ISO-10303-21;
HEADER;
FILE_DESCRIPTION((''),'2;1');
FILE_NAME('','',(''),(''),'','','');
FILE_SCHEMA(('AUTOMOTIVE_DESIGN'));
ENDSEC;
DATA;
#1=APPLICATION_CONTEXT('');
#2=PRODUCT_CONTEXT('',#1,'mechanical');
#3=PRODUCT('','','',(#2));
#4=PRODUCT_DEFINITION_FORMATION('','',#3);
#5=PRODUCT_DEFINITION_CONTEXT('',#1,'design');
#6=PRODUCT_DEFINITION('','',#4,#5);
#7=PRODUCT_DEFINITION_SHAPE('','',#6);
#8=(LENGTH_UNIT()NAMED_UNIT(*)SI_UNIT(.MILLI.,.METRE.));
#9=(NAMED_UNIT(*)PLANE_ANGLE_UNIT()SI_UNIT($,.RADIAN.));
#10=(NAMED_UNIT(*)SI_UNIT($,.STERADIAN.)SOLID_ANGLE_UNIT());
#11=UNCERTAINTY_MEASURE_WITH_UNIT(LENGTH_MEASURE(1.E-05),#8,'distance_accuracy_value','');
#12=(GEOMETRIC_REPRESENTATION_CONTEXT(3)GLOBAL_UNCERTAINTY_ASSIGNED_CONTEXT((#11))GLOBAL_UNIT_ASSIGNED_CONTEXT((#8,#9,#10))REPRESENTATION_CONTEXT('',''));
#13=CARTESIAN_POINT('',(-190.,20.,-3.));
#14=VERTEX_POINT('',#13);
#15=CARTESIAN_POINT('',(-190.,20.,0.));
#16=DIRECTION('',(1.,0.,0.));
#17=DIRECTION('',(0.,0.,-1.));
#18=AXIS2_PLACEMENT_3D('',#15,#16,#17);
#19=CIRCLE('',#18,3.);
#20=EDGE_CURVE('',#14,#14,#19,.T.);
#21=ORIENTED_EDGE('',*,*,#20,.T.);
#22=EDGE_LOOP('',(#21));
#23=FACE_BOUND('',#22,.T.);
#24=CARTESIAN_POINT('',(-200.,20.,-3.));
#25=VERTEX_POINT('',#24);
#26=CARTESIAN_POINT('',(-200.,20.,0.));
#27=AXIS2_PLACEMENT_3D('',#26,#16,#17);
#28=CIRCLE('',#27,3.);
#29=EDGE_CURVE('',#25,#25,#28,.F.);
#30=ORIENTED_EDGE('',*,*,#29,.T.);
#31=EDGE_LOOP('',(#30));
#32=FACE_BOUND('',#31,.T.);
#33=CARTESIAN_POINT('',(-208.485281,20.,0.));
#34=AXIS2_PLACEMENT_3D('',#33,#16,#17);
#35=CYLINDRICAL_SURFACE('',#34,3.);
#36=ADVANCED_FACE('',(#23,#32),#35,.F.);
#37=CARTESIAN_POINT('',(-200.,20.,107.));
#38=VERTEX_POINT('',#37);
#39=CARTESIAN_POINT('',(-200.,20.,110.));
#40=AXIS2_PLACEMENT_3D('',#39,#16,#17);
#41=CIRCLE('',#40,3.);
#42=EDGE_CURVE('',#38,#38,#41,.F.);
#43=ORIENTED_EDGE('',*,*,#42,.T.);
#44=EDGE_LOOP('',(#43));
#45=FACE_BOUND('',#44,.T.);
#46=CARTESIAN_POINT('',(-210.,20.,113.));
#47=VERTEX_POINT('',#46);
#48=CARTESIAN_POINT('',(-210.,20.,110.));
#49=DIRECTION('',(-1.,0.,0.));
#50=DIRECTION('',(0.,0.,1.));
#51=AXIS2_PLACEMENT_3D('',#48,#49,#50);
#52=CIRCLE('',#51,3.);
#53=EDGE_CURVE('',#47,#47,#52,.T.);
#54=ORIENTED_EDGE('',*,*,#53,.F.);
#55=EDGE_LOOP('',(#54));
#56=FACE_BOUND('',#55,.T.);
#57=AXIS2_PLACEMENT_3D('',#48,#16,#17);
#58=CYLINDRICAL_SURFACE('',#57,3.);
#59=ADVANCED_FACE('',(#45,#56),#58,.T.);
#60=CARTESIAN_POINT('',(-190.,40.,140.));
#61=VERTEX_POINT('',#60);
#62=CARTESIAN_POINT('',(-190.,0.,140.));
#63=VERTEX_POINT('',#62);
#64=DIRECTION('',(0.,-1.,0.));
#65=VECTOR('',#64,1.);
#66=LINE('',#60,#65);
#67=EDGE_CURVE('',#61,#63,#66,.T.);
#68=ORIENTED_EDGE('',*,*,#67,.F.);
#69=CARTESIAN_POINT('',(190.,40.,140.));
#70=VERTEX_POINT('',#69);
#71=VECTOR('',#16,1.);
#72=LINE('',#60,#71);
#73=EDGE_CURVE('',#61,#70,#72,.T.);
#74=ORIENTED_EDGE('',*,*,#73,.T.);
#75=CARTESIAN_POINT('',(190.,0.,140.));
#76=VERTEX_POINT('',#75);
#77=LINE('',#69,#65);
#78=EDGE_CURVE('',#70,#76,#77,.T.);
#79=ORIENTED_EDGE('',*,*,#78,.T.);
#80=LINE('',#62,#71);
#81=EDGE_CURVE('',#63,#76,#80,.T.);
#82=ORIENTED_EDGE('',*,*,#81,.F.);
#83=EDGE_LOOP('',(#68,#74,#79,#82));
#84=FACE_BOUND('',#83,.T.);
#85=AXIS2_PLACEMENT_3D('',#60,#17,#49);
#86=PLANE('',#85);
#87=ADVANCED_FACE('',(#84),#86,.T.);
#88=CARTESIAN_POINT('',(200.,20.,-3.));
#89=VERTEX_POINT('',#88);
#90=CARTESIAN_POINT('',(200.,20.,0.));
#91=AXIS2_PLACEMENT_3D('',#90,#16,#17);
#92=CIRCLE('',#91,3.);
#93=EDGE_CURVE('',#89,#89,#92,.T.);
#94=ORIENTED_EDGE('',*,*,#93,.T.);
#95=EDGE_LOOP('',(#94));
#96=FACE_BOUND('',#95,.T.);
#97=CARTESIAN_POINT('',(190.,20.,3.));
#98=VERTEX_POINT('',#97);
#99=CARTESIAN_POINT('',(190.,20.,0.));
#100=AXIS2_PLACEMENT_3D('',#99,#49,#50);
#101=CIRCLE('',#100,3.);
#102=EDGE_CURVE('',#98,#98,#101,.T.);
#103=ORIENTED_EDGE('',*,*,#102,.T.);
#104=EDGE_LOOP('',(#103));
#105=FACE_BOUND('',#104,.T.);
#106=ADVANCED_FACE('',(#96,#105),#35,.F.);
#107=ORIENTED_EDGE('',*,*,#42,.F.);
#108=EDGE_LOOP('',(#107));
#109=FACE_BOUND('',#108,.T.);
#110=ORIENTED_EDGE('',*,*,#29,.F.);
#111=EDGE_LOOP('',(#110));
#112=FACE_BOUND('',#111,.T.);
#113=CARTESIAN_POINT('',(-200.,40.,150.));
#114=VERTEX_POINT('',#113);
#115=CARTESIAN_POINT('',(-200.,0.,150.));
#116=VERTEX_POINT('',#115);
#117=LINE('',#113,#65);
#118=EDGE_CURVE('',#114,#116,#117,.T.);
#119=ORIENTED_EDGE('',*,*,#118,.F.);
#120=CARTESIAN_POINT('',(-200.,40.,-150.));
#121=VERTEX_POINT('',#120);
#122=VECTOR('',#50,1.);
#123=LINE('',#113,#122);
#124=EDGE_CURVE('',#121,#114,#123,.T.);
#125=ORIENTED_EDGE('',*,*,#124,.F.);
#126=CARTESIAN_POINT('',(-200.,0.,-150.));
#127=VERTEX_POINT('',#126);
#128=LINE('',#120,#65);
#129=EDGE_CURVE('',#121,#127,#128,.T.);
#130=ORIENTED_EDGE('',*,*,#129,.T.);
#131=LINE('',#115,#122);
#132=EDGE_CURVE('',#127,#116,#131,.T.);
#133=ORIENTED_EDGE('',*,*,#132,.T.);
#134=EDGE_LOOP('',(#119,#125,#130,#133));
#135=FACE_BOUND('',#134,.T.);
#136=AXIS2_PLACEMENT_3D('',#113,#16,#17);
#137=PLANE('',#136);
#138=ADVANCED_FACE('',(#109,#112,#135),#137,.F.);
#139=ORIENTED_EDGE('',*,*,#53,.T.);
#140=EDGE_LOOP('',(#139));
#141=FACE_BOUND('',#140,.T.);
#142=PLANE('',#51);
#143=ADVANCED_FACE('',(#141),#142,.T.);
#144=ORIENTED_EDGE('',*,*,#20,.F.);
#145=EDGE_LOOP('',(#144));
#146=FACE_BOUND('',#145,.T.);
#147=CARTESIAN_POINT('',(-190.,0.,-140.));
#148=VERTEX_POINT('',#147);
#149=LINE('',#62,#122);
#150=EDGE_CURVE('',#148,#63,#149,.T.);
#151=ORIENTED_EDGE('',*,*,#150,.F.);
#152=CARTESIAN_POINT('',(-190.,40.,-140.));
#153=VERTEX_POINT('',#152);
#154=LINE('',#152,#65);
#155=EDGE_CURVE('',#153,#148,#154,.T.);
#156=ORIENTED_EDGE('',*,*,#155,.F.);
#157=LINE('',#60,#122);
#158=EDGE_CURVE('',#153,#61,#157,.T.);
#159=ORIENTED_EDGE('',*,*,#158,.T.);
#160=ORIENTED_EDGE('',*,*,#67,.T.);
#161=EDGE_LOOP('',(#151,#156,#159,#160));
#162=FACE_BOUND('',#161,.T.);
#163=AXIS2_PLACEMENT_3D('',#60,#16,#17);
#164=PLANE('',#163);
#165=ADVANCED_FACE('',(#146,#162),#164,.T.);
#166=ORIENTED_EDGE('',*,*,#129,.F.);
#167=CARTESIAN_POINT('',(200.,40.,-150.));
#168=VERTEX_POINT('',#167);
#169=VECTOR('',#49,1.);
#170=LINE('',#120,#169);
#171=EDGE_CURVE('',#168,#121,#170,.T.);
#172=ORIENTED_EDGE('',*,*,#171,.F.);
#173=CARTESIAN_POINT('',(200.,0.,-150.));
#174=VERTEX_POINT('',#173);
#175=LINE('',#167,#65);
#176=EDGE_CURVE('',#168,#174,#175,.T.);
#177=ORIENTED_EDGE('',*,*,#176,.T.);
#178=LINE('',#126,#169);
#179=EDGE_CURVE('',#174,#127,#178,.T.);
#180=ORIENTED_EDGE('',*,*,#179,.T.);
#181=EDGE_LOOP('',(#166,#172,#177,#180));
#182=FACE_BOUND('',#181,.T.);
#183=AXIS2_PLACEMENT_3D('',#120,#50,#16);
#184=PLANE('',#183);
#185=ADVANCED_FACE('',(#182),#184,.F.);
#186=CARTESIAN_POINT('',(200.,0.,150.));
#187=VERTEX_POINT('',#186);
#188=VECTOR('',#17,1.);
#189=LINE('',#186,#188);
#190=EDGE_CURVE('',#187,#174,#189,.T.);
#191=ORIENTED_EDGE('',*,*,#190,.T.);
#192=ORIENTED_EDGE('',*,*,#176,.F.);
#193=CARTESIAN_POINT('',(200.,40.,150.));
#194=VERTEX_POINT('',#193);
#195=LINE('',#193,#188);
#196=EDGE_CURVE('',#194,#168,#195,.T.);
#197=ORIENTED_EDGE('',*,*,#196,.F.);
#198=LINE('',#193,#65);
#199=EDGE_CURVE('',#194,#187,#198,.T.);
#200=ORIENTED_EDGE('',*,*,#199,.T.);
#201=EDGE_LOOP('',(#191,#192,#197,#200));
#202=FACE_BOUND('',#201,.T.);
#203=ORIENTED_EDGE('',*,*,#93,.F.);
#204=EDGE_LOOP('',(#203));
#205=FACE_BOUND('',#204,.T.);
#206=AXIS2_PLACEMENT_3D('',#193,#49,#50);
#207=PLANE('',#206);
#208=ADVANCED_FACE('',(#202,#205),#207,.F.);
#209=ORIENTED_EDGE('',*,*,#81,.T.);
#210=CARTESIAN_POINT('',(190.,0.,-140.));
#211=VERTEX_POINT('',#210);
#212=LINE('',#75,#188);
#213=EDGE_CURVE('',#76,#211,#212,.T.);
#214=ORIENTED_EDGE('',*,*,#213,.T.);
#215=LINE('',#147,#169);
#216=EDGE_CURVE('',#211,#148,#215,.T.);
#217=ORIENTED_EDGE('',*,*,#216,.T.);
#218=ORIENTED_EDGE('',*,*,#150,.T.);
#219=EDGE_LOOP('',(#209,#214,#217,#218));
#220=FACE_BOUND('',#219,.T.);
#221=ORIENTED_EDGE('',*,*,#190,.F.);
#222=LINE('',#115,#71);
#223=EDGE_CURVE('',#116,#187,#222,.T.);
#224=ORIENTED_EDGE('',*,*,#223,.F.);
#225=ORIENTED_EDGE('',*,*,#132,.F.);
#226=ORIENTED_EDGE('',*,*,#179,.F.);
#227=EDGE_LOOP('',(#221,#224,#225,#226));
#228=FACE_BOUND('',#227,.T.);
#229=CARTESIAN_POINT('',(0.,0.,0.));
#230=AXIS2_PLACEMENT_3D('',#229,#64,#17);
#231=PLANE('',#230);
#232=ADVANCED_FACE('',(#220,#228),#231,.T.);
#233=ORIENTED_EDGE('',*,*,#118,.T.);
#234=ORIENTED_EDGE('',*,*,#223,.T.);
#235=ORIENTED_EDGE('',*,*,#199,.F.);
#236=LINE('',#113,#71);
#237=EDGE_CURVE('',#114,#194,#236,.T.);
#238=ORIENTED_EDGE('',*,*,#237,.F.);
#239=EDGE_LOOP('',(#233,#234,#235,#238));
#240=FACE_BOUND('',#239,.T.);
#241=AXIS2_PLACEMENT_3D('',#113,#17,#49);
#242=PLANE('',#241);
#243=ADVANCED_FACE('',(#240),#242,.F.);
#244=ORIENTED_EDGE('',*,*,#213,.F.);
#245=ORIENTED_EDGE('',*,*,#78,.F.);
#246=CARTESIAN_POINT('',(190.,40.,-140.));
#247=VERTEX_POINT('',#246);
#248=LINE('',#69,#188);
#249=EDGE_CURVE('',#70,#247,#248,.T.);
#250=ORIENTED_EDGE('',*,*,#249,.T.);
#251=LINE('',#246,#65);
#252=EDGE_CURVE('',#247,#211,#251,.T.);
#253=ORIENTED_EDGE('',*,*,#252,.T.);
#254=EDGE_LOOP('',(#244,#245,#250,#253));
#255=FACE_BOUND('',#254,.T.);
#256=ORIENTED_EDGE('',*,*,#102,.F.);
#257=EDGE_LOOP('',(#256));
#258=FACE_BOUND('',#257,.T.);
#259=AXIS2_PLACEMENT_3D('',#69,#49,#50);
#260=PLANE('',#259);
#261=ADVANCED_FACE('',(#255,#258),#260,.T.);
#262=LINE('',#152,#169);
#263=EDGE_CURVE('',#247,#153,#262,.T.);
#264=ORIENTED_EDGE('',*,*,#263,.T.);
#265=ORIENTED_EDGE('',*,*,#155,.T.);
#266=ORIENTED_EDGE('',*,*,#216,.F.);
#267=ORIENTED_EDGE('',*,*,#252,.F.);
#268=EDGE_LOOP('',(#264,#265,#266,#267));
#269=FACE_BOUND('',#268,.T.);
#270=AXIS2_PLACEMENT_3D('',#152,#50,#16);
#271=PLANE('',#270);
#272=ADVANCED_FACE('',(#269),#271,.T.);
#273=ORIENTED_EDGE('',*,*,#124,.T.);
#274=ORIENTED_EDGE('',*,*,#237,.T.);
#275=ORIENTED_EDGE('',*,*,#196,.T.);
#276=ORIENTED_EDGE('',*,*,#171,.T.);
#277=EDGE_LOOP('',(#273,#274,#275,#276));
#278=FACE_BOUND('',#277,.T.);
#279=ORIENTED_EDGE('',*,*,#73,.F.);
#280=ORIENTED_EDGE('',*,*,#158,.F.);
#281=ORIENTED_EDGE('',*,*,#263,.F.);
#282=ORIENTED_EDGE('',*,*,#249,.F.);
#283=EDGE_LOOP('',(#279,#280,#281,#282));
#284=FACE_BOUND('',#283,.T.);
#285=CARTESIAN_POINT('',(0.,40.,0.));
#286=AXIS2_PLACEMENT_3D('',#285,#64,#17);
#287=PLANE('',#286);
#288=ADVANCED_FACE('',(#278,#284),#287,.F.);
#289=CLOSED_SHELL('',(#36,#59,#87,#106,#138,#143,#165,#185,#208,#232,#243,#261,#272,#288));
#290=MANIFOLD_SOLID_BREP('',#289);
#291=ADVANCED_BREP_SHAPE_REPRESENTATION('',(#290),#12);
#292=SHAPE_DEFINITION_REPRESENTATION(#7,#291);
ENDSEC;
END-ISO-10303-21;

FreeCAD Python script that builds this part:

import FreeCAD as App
import Part
import Sketcher
Q = App.Units.Quantity

doc = App.newDocument("Part")
params = doc.addObject("Spreadsheet::Sheet", "Params")
for row, (alias, value) in enumerate([
    ("sketch1_width", "400 mm"),
    ("sketch1_width2", "380 mm"),
    ("sketch1_height", "300 mm"),
    ("sketch1_height2", "280 mm"),
    ("pad1_length", "40 mm"),
    ("sketch2_diameter", "6 mm"),
    ("pad2_length", "10 mm"),
    ("sketch3_diameter", "6 mm"),
    ("pocket1_length", "400 mm"),
], start=1):
    params.set(f"A{row}", alias)
    params.set(f"B{row}", "=" + value)
    params.setAlias(f"B{row}", alias)

body = doc.addObject("PartDesign::Body", "Body")

# Sketch on XZ plane
sketch1 = body.newObject("Sketcher::SketchObject", "Sketch")
sketch1.AttachmentSupport = (doc.getObject("XZ_Plane"), [""])
sketch1.MapMode = "FlatFace"
sketch1.addGeometry([
    Part.LineSegment(App.Vector(-200, -150, 0), App.Vector(-200, 150, 0)),  # 0
    Part.LineSegment(App.Vector(-200, 150, 0), App.Vector(200, 150, 0)),  # 1
    Part.LineSegment(App.Vector(200, 150, 0), App.Vector(200, -150, 0)),  # 2
    Part.LineSegment(App.Vector(200, -150, 0), App.Vector(-200, -150, 0)),  # 3
    Part.LineSegment(App.Vector(190, 140, 0), App.Vector(-190, 140, 0)),  # 4
    Part.LineSegment(App.Vector(-190, 140, 0), App.Vector(-190, -140, 0)),  # 5
    Part.LineSegment(App.Vector(-190, -140, 0), App.Vector(190, -140, 0)),  # 6
    Part.LineSegment(App.Vector(190, -140, 0), App.Vector(190, 140, 0)),  # 7
], False)
sketch1.addConstraint([
    Sketcher.Constraint("Coincident", 0, 2, 1, 1),
    Sketcher.Constraint("Coincident", 1, 2, 2, 1),
    Sketcher.Constraint("Coincident", 2, 2, 3, 1),
    Sketcher.Constraint("Coincident", 3, 2, 0, 1),
    Sketcher.Constraint("Coincident", 4, 2, 5, 1),
    Sketcher.Constraint("Coincident", 5, 2, 6, 1),
    Sketcher.Constraint("Coincident", 6, 2, 7, 1),
    Sketcher.Constraint("Coincident", 7, 2, 4, 1),
    Sketcher.Constraint("Vertical", 0),
    Sketcher.Constraint("Horizontal", 1),
    Sketcher.Constraint("Vertical", 2),
    Sketcher.Constraint("Horizontal", 3),
    Sketcher.Constraint("Horizontal", 4),
    Sketcher.Constraint("Vertical", 5),
    Sketcher.Constraint("Horizontal", 6),
    Sketcher.Constraint("Vertical", 7),
    Sketcher.Constraint("Symmetric", 0, 2, 2, 2, -1, 1),
    Sketcher.Constraint("Symmetric", 4, 2, 6, 2, -1, 1),
    Sketcher.Constraint("DistanceX", 1, 1, 1, 2, Q("400 mm")),
    Sketcher.Constraint("DistanceX", 4, 2, 4, 1, Q("380 mm")),
    Sketcher.Constraint("DistanceY", 0, 1, 0, 2, Q("300 mm")),
    Sketcher.Constraint("DistanceY", 5, 2, 5, 1, Q("280 mm")),
])
sketch1.setExpression("Constraints[18]", "Params.sketch1_width")
sketch1.setExpression("Constraints[19]", "Params.sketch1_width2")
sketch1.setExpression("Constraints[20]", "Params.sketch1_height")
sketch1.setExpression("Constraints[21]", "Params.sketch1_height2")
pad1 = body.newObject("PartDesign::Pad", "Pad")
pad1.Profile = sketch1
pad1.setExpression("Length", "Params.pad1_length")
pad1.Reversed = True

# Sketch on YZ plane
sketch2 = body.newObject("Sketcher::SketchObject", "Sketch001")
sketch2.AttachmentSupport = (doc.getObject("YZ_Plane"), [""])
sketch2.MapMode = "FlatFace"
sketch2.AttachmentOffset = App.Placement(App.Vector(0, 0, -200), App.Rotation())
sketch2.addGeometry(Part.Circle(App.Vector(20, 110, 0), App.Vector(0, 0, 1), 3), False)
sketch2.addConstraint([
    Sketcher.Constraint("Diameter", 0, Q("6 mm")),
    Sketcher.Constraint("DistanceX", -1, 1, 0, 3, Q("20 mm")),
    Sketcher.Constraint("DistanceY", -1, 1, 0, 3, Q("110 mm")),
])
sketch2.setExpression("Constraints[0]", "Params.sketch2_diameter")
pad2 = body.newObject("PartDesign::Pad", "Pad001")
pad2.Profile = sketch2
pad2.setExpression("Length", "Params.pad2_length")
pad2.Reversed = True

# Sketch on YZ plane
sketch3 = body.newObject("Sketcher::SketchObject", "Sketch002")
sketch3.AttachmentSupport = (doc.getObject("YZ_Plane"), [""])
sketch3.MapMode = "FlatFace"
sketch3.AttachmentOffset = App.Placement(App.Vector(0, 0, 200), App.Rotation())
sketch3.addGeometry(Part.Circle(App.Vector(20, 0, 0), App.Vector(0, 0, 1), 3), False)
sketch3.addConstraint([
    Sketcher.Constraint("PointOnObject", 0, 3, -1),
    Sketcher.Constraint("Diameter", 0, Q("6 mm")),
    Sketcher.Constraint("DistanceX", -1, 1, 0, 3, Q("20 mm")),
])
sketch3.setExpression("Constraints[1]", "Params.sketch3_diameter")
pocket1 = body.newObject("PartDesign::Pocket", "Pocket")
pocket1.Profile = sketch3
pocket1.setExpression("Length", "Params.pocket1_length")

doc.recompute()
